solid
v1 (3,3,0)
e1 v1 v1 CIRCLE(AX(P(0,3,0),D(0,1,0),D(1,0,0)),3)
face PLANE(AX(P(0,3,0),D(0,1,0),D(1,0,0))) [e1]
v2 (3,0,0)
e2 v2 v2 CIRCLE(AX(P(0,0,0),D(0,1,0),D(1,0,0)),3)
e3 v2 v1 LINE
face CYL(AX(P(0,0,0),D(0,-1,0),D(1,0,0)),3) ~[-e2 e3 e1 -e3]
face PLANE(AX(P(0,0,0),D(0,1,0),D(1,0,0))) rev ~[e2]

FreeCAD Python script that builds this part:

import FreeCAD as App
import Part
import Sketcher

doc = App.newDocument("Part")
params = doc.addObject("Spreadsheet::Sheet", "Params")
for row, (alias, value) in enumerate([
    ("sketch1_diameter", "6 mm"),
    ("pad1_length", "3 mm"),
], start=1):
    params.set(f"A{row}", alias)
    params.set(f"B{row}", "=" + value)
    params.setAlias(f"B{row}", alias)

body = doc.addObject("PartDesign::Body", "Body")

sketch1 = doc.addObject("Sketcher::SketchObject", "Sketch")
body.addObject(sketch1)
sketch1.AttachmentSupport = (doc.XZ_Plane, [""])
sketch1.MapMode = "FlatFace"
sketch1.addGeometry(Part.Circle(App.Vector(0, 0, 0), App.Vector(0, 0, 1), 3), False)
sketch1.addConstraint(Sketcher.Constraint("Coincident", 0, 3, -1, 1))
sketch1.addConstraint(Sketcher.Constraint("Diameter", 0, 6.0))
sketch1.setExpression("Constraints[1]", "Params.sketch1_diameter")
pad1 = doc.addObject("PartDesign::Pad", "Pad")
body.addObject(pad1)
pad1.Profile = sketch1
pad1.setExpression("Length", "Params.pad1_length")
pad1.Reversed = True

doc.recompute()
